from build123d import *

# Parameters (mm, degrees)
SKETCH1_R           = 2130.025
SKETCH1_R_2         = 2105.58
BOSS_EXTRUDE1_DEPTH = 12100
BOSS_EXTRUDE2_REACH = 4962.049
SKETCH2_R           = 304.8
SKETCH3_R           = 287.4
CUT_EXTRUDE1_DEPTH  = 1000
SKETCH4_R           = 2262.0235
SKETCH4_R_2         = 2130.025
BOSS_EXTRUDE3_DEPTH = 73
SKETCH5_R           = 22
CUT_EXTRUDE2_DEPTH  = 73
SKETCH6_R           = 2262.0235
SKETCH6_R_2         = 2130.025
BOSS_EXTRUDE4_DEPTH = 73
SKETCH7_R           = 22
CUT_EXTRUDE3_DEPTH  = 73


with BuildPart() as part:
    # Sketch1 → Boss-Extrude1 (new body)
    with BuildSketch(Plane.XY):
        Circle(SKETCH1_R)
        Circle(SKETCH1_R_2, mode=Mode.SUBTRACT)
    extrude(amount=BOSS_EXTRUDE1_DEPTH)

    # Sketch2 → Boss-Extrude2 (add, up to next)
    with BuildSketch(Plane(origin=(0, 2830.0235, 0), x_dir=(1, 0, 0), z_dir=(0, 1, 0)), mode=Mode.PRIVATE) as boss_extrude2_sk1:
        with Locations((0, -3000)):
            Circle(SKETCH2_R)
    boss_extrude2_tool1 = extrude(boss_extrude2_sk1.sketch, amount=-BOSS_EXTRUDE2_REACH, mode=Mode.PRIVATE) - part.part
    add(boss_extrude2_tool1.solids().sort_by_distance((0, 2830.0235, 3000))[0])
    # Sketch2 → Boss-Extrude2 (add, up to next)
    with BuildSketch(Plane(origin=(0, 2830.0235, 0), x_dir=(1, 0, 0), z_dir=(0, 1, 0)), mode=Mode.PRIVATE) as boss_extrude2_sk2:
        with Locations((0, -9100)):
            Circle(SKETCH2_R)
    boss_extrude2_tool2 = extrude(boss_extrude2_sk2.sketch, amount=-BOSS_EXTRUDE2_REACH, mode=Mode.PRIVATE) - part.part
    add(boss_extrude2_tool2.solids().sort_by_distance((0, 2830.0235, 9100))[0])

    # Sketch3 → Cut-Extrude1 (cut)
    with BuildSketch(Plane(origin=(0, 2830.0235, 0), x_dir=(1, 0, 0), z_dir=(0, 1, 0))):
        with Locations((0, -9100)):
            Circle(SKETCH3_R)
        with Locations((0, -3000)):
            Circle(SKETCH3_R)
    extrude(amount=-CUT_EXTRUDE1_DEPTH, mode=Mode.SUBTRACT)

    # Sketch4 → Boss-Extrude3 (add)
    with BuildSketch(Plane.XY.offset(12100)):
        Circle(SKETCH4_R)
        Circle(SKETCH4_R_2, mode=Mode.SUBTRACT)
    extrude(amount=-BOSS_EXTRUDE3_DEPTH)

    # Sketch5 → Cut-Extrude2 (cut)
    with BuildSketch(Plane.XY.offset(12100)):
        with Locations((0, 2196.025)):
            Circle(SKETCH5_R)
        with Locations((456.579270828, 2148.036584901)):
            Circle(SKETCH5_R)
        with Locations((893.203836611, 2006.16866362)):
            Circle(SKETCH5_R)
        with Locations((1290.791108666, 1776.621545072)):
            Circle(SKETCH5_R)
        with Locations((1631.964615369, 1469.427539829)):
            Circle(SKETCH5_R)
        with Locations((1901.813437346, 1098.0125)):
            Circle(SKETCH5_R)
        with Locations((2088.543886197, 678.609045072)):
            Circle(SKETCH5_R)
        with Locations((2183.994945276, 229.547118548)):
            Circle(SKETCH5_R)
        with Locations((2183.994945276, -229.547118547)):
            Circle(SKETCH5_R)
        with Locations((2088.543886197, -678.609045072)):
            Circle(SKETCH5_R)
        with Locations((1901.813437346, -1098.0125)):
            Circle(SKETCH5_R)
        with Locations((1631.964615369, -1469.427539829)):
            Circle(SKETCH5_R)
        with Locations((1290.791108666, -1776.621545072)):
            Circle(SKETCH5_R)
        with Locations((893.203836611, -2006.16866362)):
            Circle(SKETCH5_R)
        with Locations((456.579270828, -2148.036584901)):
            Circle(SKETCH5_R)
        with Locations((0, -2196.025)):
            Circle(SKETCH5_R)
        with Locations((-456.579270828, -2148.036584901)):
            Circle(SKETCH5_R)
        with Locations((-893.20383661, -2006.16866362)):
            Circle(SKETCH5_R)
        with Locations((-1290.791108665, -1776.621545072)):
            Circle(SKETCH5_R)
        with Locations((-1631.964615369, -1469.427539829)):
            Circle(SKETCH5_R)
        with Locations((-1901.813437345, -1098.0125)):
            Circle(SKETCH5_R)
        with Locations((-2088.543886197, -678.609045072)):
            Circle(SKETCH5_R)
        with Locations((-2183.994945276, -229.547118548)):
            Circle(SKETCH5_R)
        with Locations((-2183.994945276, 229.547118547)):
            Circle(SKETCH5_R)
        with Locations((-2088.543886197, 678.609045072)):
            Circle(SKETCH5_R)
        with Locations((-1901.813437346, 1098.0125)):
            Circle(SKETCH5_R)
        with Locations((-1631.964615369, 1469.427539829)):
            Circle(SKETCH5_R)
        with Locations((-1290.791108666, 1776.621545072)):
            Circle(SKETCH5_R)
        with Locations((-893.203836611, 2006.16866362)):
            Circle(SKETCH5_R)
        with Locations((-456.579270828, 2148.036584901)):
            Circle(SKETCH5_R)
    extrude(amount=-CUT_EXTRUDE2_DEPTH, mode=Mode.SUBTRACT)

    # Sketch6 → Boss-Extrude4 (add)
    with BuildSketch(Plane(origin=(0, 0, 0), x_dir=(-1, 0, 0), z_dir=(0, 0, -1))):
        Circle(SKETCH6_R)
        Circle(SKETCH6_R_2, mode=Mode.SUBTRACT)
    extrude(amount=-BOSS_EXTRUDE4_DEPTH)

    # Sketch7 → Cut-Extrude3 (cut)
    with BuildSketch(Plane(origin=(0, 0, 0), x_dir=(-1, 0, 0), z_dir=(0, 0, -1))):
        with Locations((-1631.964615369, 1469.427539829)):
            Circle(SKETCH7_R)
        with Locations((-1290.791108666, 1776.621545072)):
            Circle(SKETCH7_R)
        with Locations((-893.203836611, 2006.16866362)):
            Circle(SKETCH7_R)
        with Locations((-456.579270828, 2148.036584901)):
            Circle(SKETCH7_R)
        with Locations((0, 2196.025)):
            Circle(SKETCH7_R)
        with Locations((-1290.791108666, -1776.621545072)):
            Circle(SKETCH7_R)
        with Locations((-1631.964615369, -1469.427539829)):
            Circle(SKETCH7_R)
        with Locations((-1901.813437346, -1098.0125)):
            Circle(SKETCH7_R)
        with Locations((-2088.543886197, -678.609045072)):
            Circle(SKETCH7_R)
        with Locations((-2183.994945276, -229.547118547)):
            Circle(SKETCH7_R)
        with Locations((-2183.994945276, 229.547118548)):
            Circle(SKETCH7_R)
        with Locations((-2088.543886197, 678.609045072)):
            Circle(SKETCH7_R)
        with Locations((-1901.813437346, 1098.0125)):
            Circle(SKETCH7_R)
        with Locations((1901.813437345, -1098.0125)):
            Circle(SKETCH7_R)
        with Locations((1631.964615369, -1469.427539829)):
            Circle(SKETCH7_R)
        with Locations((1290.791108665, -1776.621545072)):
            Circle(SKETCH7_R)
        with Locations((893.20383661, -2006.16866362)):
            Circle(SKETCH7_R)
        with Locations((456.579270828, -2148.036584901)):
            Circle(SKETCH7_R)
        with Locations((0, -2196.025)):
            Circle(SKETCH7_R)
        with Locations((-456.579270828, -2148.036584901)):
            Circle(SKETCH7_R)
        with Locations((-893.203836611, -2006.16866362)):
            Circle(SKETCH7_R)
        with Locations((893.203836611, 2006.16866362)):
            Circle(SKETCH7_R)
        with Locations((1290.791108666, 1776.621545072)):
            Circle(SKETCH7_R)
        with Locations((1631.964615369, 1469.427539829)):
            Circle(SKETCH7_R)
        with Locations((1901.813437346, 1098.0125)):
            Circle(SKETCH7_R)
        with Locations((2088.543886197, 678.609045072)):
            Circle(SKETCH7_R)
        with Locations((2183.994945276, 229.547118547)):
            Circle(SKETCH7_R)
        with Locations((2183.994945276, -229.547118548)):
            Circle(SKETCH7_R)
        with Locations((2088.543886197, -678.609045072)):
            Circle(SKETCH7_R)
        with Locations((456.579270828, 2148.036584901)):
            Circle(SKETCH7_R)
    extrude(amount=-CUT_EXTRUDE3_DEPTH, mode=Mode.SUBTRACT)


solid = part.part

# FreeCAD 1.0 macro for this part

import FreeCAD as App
import Part
import Sketcher

V = App.Vector
Q = App.Units.Quantity

doc = App.newDocument("Part")
body = doc.addObject("PartDesign::Body", "Body")

sketch1 = doc.addObject("Sketcher::SketchObject", "Sketch")
body.addObject(sketch1)
sketch1.AttachmentSupport = (doc.XY_Plane, [""])
sketch1.MapMode = "FlatFace"
sketch1.addGeometry([
    Part.Circle(V(0, 0, 0), V(0, 0, 1), 2130),
    Part.Circle(V(0, 0, 0), V(0, 0, 1), 2106),
], False)
sketch1.addConstraint([
    Sketcher.Constraint("Coincident", 0, 3, -1, 1),
    Sketcher.Constraint("Coincident", 1, 3, -1, 1),
    Sketcher.Constraint("Diameter", 0, Q("4260.05 mm")),
    Sketcher.Constraint("Diameter", 1, Q("4211.16 mm")),
])
pad1 = doc.addObject("PartDesign::Pad", "Pad")
body.addObject(pad1)
pad1.Profile = sketch1
pad1.Length = 12100

sketch2 = doc.addObject("Sketcher::SketchObject", "Sketch001")
body.addObject(sketch2)
sketch2.AttachmentSupport = (doc.XZ_Plane, [""])
sketch2.MapMode = "FlatFace"
sketch2.AttachmentOffset = App.Placement(V(0, 0, -2830.0235), App.Rotation())
sketch2.addGeometry(Part.Circle(V(0, 3000, 0), V(0, 0, 1), 305), False)
sketch2.addConstraint([
    Sketcher.Constraint("PointOnObject", 0, 3, -2),
    Sketcher.Constraint("Diameter", 0, Q("609.6 mm")),
    Sketcher.Constraint("DistanceY", -1, 1, 0, 3, Q("3000 mm")),
])
pad2 = doc.addObject("PartDesign::Pad", "Pad001")
body.addObject(pad2)
pad2.Profile = sketch2
pad2.Type = "UpToFirst"

sketch3 = doc.addObject("Sketcher::SketchObject", "Sketch002")
body.addObject(sketch3)
sketch3.AttachmentSupport = (doc.XZ_Plane, [""])
sketch3.MapMode = "FlatFace"
sketch3.AttachmentOffset = App.Placement(V(0, 0, -2830.0235), App.Rotation())
sketch3.addGeometry(Part.Circle(V(0, 9100, 0), V(0, 0, 1), 305), False)
sketch3.addConstraint([
    Sketcher.Constraint("PointOnObject", 0, 3, -2),
    Sketcher.Constraint("Diameter", 0, Q("609.6 mm")),
    Sketcher.Constraint("DistanceY", -1, 1, 0, 3, Q("9100 mm")),
])
pad3 = doc.addObject("PartDesign::Pad", "Pad002")
body.addObject(pad3)
pad3.Profile = sketch3
pad3.Type = "UpToFirst"

sketch4 = doc.addObject("Sketcher::SketchObject", "Sketch003")
body.addObject(sketch4)
sketch4.AttachmentSupport = (doc.XZ_Plane, [""])
sketch4.MapMode = "FlatFace"
sketch4.AttachmentOffset = App.Placement(V(0, 0, -2830.0235), App.Rotation())
sketch4.addGeometry([
    Part.Circle(V(0, 9100, 0), V(0, 0, 1), 287),
    Part.Circle(V(0, 3000, 0), V(0, 0, 1), 287),
], False)
sketch4.addConstraint([
    Sketcher.Constraint("Equal", 0, 1),
    Sketcher.Constraint("PointOnObject", 0, 3, -2),
    Sketcher.Constraint("PointOnObject", 1, 3, -2),
    Sketcher.Constraint("Diameter", 0, Q("574.8 mm")),
    Sketcher.Constraint("DistanceY", -1, 1, 0, 3, Q("9100 mm")),
    Sketcher.Constraint("DistanceY", -1, 1, 1, 3, Q("3000 mm")),
])
pocket1 = doc.addObject("PartDesign::Pocket", "Pocket")
body.addObject(pocket1)
pocket1.Profile = sketch4
pocket1.Length = 1000
pocket1.Reversed = True

sketch5 = doc.addObject("Sketcher::SketchObject", "Sketch004")
body.addObject(sketch5)
sketch5.AttachmentSupport = (doc.XY_Plane, [""])
sketch5.MapMode = "FlatFace"
sketch5.AttachmentOffset = App.Placement(V(0, 0, 12100), App.Rotation())
sketch5.addGeometry([
    Part.Circle(V(0, 0, 0), V(0, 0, 1), 2262),
    Part.Circle(V(0, 0, 0), V(0, 0, 1), 2130),
], False)
sketch5.addConstraint([
    Sketcher.Constraint("Coincident", 0, 3, -1, 1),
    Sketcher.Constraint("Coincident", 1, 3, -1, 1),
    Sketcher.Constraint("Diameter", 1, Q("4260.05 mm")),
    Sketcher.Constraint("Diameter", 0, Q("4524.047 mm")),
])
pad4 = doc.addObject("PartDesign::Pad", "Pad003")
body.addObject(pad4)
pad4.Profile = sketch5
pad4.Length = 73
pad4.Reversed = True

sketch6 = doc.addObject("Sketcher::SketchObject", "Sketch005")
body.addObject(sketch6)
sketch6.AttachmentSupport = (doc.XY_Plane, [""])
sketch6.MapMode = "FlatFace"
sketch6.AttachmentOffset = App.Placement(V(0, 0, 12100), App.Rotation())
sketch6.addGeometry([
    Part.Circle(V(0, 2196, 0), V(0, 0, 1), 22),
    Part.Circle(V(457, 2148, 0), V(0, 0, 1), 22),
    Part.Circle(V(893, 2006, 0), V(0, 0, 1), 22),
    Part.Circle(V(1291, 1777, 0), V(0, 0, 1), 22),
    Part.Circle(V(1632, 1469, 0), V(0, 0, 1), 22),
    Part.Circle(V(1902, 1098, 0), V(0, 0, 1), 22),
    Part.Circle(V(2089, 679, 0), V(0, 0, 1), 22),
    Part.Circle(V(2184, 230, 0), V(0, 0, 1), 22),
    Part.Circle(V(2184, -230, 0), V(0, 0, 1), 22),
    Part.Circle(V(2089, -679, 0), V(0, 0, 1), 22),
    Part.Circle(V(1902, -1098, 0), V(0, 0, 1), 22),
    Part.Circle(V(1632, -1469, 0), V(0, 0, 1), 22),
    Part.Circle(V(1291, -1777, 0), V(0, 0, 1), 22),
    Part.Circle(V(893, -2006, 0), V(0, 0, 1), 22),
    Part.Circle(V(457, -2148, 0), V(0, 0, 1), 22),
    Part.Circle(V(0, -2196, 0), V(0, 0, 1), 22),
    Part.Circle(V(-457, -2148, 0), V(0, 0, 1), 22),
    Part.Circle(V(-893, -2006, 0), V(0, 0, 1), 22),
    Part.Circle(V(-1291, -1777, 0), V(0, 0, 1), 22),
    Part.Circle(V(-1632, -1469, 0), V(0, 0, 1), 22),
    Part.Circle(V(-1902, -1098, 0), V(0, 0, 1), 22),
    Part.Circle(V(-2089, -679, 0), V(0, 0, 1), 22),
    Part.Circle(V(-2184, -230, 0), V(0, 0, 1), 22),
    Part.Circle(V(-2184, 230, 0), V(0, 0, 1), 22),
    Part.Circle(V(-2089, 679, 0), V(0, 0, 1), 22),
    Part.Circle(V(-1902, 1098, 0), V(0, 0, 1), 22),
    Part.Circle(V(-1632, 1469, 0), V(0, 0, 1), 22),
    Part.Circle(V(-1291, 1777, 0), V(0, 0, 1), 22),
    Part.Circle(V(-893, 2006, 0), V(0, 0, 1), 22),
    Part.Circle(V(-457, 2148, 0), V(0, 0, 1), 22),
], False)
sketch6.addConstraint([
    Sketcher.Constraint("Equal", 0, 1),
    Sketcher.Constraint("Equal", 1, 2),
    Sketcher.Constraint("Equal", 2, 3),
    Sketcher.Constraint("Equal", 3, 4),
    Sketcher.Constraint("Equal", 4, 5),
    Sketcher.Constraint("Equal", 5, 6),
    Sketcher.Constraint("Equal", 6, 7),
    Sketcher.Constraint("Equal", 7, 8),
    Sketcher.Constraint("Equal", 8, 9),
    Sketcher.Constraint("Equal", 9, 10),
    Sketcher.Constraint("Equal", 10, 11),
    Sketcher.Constraint("Equal", 11, 12),
    Sketcher.Constraint("Equal", 12, 13),
    Sketcher.Constraint("Equal", 13, 14),
    Sketcher.Constraint("Equal", 14, 15),
    Sketcher.Constraint("Equal", 15, 16),
    Sketcher.Constraint("Equal", 16, 17),
    Sketcher.Constraint("Equal", 17, 18),
    Sketcher.Constraint("Equal", 18, 19),
    Sketcher.Constraint("Equal", 19, 20),
    Sketcher.Constraint("Equal", 20, 21),
    Sketcher.Constraint("Equal", 21, 22),
    Sketcher.Constraint("Equal", 22, 23),
    Sketcher.Constraint("Equal", 23, 24),
    Sketcher.Constraint("Equal", 24, 25),
    Sketcher.Constraint("Equal", 25, 26),
    Sketcher.Constraint("Equal", 26, 27),
    Sketcher.Constraint("Equal", 27, 28),
    Sketcher.Constraint("Equal", 28, 29),
    Sketcher.Constraint("Symmetric", 0, 3, 15, 3, -1, 1),
    Sketcher.Constraint("Symmetric", 1, 3, 16, 3, -1, 1),
    Sketcher.Constraint("Symmetric", 2, 3, 17, 3, -1, 1),
    Sketcher.Constraint("Symmetric", 3, 3, 18, 3, -1, 1),
    Sketcher.Constraint("Symmetric", 4, 3, 19, 3, -1, 1),
    Sketcher.Constraint("Symmetric", 5, 3, 20, 3, -1, 1),
    Sketcher.Constraint("Symmetric", 6, 3, 21, 3, -1, 1),
    Sketcher.Constraint("Symmetric", 7, 3, 22, 3, -1, 1),
    Sketcher.Constraint("Symmetric", 8, 3, 23, 3, -1, 1),
    Sketcher.Constraint("Symmetric", 9, 3, 24, 3, -1, 1),
    Sketcher.Constraint("Symmetric", 10, 3, 25, 3, -1, 1),
    Sketcher.Constraint("Symmetric", 11, 3, 26, 3, -1, 1),
    Sketcher.Constraint("Symmetric", 12, 3, 27, 3, -1, 1),
    Sketcher.Constraint("Symmetric", 13, 3, 28, 3, -1, 1),
    Sketcher.Constraint("Symmetric", 14, 3, 29, 3, -1, 1),
    Sketcher.Constraint("Symmetric", 14, 3, 16, 3, -2),
    Sketcher.Constraint("Symmetric", 13, 3, 17, 3, -2),
    Sketcher.Constraint("Symmetric", 12, 3, 18, 3, -2),
    Sketcher.Constraint("Symmetric", 11, 3, 19, 3, -2),
    Sketcher.Constraint("Symmetric", 10, 3, 20, 3, -2),
    Sketcher.Constraint("Symmetric", 9, 3, 21, 3, -2),
    Sketcher.Constraint("Symmetric", 8, 3, 22, 3, -2),
    Sketcher.Constraint("PointOnObject", 0, 3, -2),
    Sketcher.Constraint("Diameter", 0, Q("44 mm")),
    Sketcher.Constraint("DistanceY", -1, 1, 0, 3, Q("2196.025 mm")),
    Sketcher.Constraint("DistanceY", 10, 3, 5, 3, Q("2196.025 mm")),
    Sketcher.Constraint("DistanceX", 2, 3, 5, 3, Q("1008.609601 mm")),
    Sketcher.Constraint("DistanceY", 6, 3, 3, 3, Q("1098.0125 mm")),
    Sketcher.Constraint("DistanceX", -1, 1, 1, 3, Q("456.579271 mm")),
    Sketcher.Constraint("DistanceX", -1, 1, 3, 3, Q("1290.791109 mm")),
    Sketcher.Constraint("DistanceY", -1, 1, 4, 3, Q("1469.42754 mm")),
    Sketcher.Constraint("DistanceY", -1, 1, 7, 3, Q("229.547119 mm")),
    Sketcher.Constraint("DistanceY", 2, 3, 1, 3, Q("141.867921 mm")),
    Sketcher.Constraint("DistanceY", 3, 3, 2, 3, Q("229.547119 mm")),
    Sketcher.Constraint("DistanceX", 2, 3, 4, 3, Q("738.760779 mm")),
    Sketcher.Constraint("DistanceX", 3, 3, 5, 3, Q("611.022329 mm")),
    Sketcher.Constraint("DistanceX", 5, 3, 6, 3, Q("186.730449 mm")),
    Sketcher.Constraint("DistanceX", 6, 3, 7, 3, Q("95.451059 mm")),
    Sketcher.Constraint("DistanceY", 9, 3, 6, 3, Q("1357.21809 mm")),
])
pocket2 = doc.addObject("PartDesign::Pocket", "Pocket001")
body.addObject(pocket2)
pocket2.Profile = sketch6
pocket2.Length = 73

sketch7 = doc.addObject("Sketcher::SketchObject", "Sketch006")
body.addObject(sketch7)
sketch7.AttachmentSupport = (doc.XY_Plane, [""])
sketch7.MapMode = "FlatFace"
sketch7.addGeometry([
    Part.Circle(V(0, 0, 0), V(0, 0, 1), 2262),
    Part.Circle(V(0, 0, 0), V(0, 0, 1), 2130),
], False)
sketch7.addConstraint([
    Sketcher.Constraint("Coincident", 0, 3, -1, 1),
    Sketcher.Constraint("Coincident", 1, 3, -1, 1),
    Sketcher.Constraint("Diameter", 1, Q("4260.05 mm")),
    Sketcher.Constraint("Diameter", 0, Q("4524.047 mm")),
])
pad5 = doc.addObject("PartDesign::Pad", "Pad004")
body.addObject(pad5)
pad5.Profile = sketch7
pad5.Length = 73

sketch8 = doc.addObject("Sketcher::SketchObject", "Sketch007")
body.addObject(sketch8)
sketch8.AttachmentSupport = (doc.XY_Plane, [""])
sketch8.MapMode = "FlatFace"
sketch8.addGeometry([
    Part.Circle(V(1632, 1469, 0), V(0, 0, 1), 22),
    Part.Circle(V(1291, 1777, 0), V(0, 0, 1), 22),
    Part.Circle(V(893, 2006, 0), V(0, 0, 1), 22),
    Part.Circle(V(457, 2148, 0), V(0, 0, 1), 22),
    Part.Circle(V(0, 2196, 0), V(0, 0, 1), 22),
    Part.Circle(V(1291, -1777, 0), V(0, 0, 1), 22),
    Part.Circle(V(1632, -1469, 0), V(0, 0, 1), 22),
    Part.Circle(V(1902, -1098, 0), V(0, 0, 1), 22),
    Part.Circle(V(2089, -679, 0), V(0, 0, 1), 22),
    Part.Circle(V(2184, -230, 0), V(0, 0, 1), 22),
    Part.Circle(V(2184, 230, 0), V(0, 0, 1), 22),
    Part.Circle(V(2089, 679, 0), V(0, 0, 1), 22),
    Part.Circle(V(1902, 1098, 0), V(0, 0, 1), 22),
    Part.Circle(V(-1902, -1098, 0), V(0, 0, 1), 22),
    Part.Circle(V(-1632, -1469, 0), V(0, 0, 1), 22),
    Part.Circle(V(-1291, -1777, 0), V(0, 0, 1), 22),
    Part.Circle(V(-893, -2006, 0), V(0, 0, 1), 22),
    Part.Circle(V(-457, -2148, 0), V(0, 0, 1), 22),
    Part.Circle(V(0, -2196, 0), V(0, 0, 1), 22),
    Part.Circle(V(457, -2148, 0), V(0, 0, 1), 22),
    Part.Circle(V(893, -2006, 0), V(0, 0, 1), 22),
    Part.Circle(V(-893, 2006, 0), V(0, 0, 1), 22),
    Part.Circle(V(-1291, 1777, 0), V(0, 0, 1), 22),
    Part.Circle(V(-1632, 1469, 0), V(0, 0, 1), 22),
    Part.Circle(V(-1902, 1098, 0), V(0, 0, 1), 22),
    Part.Circle(V(-2089, 679, 0), V(0, 0, 1), 22),
    Part.Circle(V(-2184, 230, 0), V(0, 0, 1), 22),
    Part.Circle(V(-2184, -230, 0), V(0, 0, 1), 22),
    Part.Circle(V(-2089, -679, 0), V(0, 0, 1), 22),
    Part.Circle(V(-457, 2148, 0), V(0, 0, 1), 22),
], False)
sketch8.addConstraint([
    Sketcher.Constraint("Equal", 0, 1),
    Sketcher.Constraint("Equal", 1, 2),
    Sketcher.Constraint("Equal", 2, 3),
    Sketcher.Constraint("Equal", 3, 4),
    Sketcher.Constraint("Equal", 4, 5),
    Sketcher.Constraint("Equal", 5, 6),
    Sketcher.Constraint("Equal", 6, 7),
    Sketcher.Constraint("Equal", 7, 8),
    Sketcher.Constraint("Equal", 8, 9),
    Sketcher.Constraint("Equal", 9, 10),
    Sketcher.Constraint("Equal", 10, 11),
    Sketcher.Constraint("Equal", 11, 12),
    Sketcher.Constraint("Equal", 12, 13),
    Sketcher.Constraint("Equal", 13, 14),
    Sketcher.Constraint("Equal", 14, 15),
    Sketcher.Constraint("Equal", 15, 16),
    Sketcher.Constraint("Equal", 16, 17),
    Sketcher.Constraint("Equal", 17, 18),
    Sketcher.Constraint("Equal", 18, 19),
    Sketcher.Constraint("Equal", 19, 20),
    Sketcher.Constraint("Equal", 20, 21),
    Sketcher.Constraint("Equal", 21, 22),
    Sketcher.Constraint("Equal", 22, 23),
    Sketcher.Constraint("Equal", 23, 24),
    Sketcher.Constraint("Equal", 24, 25),
    Sketcher.Constraint("Equal", 25, 26),
    Sketcher.Constraint("Equal", 26, 27),
    Sketcher.Constraint("Equal", 27, 28),
    Sketcher.Constraint("Equal", 28, 29),
    Sketcher.Constraint("Symmetric", 12, 3, 13, 3, -1, 1),
    Sketcher.Constraint("Symmetric", 0, 3, 14, 3, -1, 1),
    Sketcher.Constraint("Symmetric", 1, 3, 15, 3, -1, 1),
    Sketcher.Constraint("Symmetric", 2, 3, 16, 3, -1, 1),
    Sketcher.Constraint("Symmetric", 3, 3, 17, 3, -1, 1),
    Sketcher.Constraint("Symmetric", 4, 3, 18, 3, -1, 1),
    Sketcher.Constraint("Symmetric", 20, 3, 21, 3, -1, 1),
    Sketcher.Constraint("Symmetric", 5, 3, 22, 3, -1, 1),
    Sketcher.Constraint("Symmetric", 6, 3, 23, 3, -1, 1),
    Sketcher.Constraint("Symmetric", 7, 3, 24, 3, -1, 1),
    Sketcher.Constraint("Symmetric", 8, 3, 25, 3, -1, 1),
    Sketcher.Constraint("Symmetric", 9, 3, 26, 3, -1, 1),
    Sketcher.Constraint("Symmetric", 10, 3, 27, 3, -1, 1),
    Sketcher.Constraint("Symmetric", 11, 3, 28, 3, -1, 1),
    Sketcher.Constraint("Symmetric", 19, 3, 29, 3, -1, 1),
    Sketcher.Constraint("Symmetric", 7, 3, 13, 3, -2),
    Sketcher.Constraint("Symmetric", 6, 3, 14, 3, -2),
    Sketcher.Constraint("Symmetric", 5, 3, 15, 3, -2),
    Sketcher.Constraint("Symmetric", 17, 3, 19, 3, -2),
    Sketcher.Constraint("Symmetric", 16, 3, 20, 3, -2),
    Sketcher.Constraint("Symmetric", 11, 3, 25, 3, -2),
    Sketcher.Constraint("Symmetric", 10, 3, 26, 3, -2),
    Sketcher.Constraint("PointOnObject", 4, 3, -2),
    Sketcher.Constraint("Diameter", 0, Q("44 mm")),
    Sketcher.Constraint("DistanceY", -1, 1, 4, 3, Q("2196.025 mm")),
    Sketcher.Constraint("DistanceY", 13, 3, 24, 3, Q("2196.025 mm")),
    Sketcher.Constraint("DistanceX", 2, 3, 7, 3, Q("1008.609601 mm")),
    Sketcher.Constraint("DistanceY", 5, 3, 8, 3, Q("1098.0125 mm")),
    Sketcher.Constraint("DistanceX", 14, 3, 8, 3, Q("3720.508502 mm")),
    Sketcher.Constraint("DistanceY", -1, 1, 0, 3, Q("1469.42754 mm")),
    Sketcher.Constraint("DistanceX", -1, 1, 1, 3, Q("1290.791109 mm")),
    Sketcher.Constraint("DistanceX", -1, 1, 3, 3, Q("456.579271 mm")),
    Sketcher.Constraint("DistanceY", 9, 3, -1, 1, Q("229.547119 mm")),
    Sketcher.Constraint("DistanceY", 1, 3, 2, 3, Q("229.547119 mm")),
    Sketcher.Constraint("DistanceX", 2, 3, 0, 3, Q("738.760779 mm")),
    Sketcher.Constraint("DistanceY", 2, 3, 3, 3, Q("141.867921 mm")),
    Sketcher.Constraint("DistanceY", 5, 3, 1, 3, Q("3553.24309 mm")),
    Sketcher.Constraint("DistanceX", 5, 3, 7, 3, Q("611.022329 mm")),
    Sketcher.Constraint("DistanceX", 8, 3, 9, 3, Q("95.451059 mm")),
])
pocket3 = doc.addObject("PartDesign::Pocket", "Pocket002")
body.addObject(pocket3)
pocket3.Profile = sketch8
pocket3.Length = 73
pocket3.Reversed = True

doc.recompute()
